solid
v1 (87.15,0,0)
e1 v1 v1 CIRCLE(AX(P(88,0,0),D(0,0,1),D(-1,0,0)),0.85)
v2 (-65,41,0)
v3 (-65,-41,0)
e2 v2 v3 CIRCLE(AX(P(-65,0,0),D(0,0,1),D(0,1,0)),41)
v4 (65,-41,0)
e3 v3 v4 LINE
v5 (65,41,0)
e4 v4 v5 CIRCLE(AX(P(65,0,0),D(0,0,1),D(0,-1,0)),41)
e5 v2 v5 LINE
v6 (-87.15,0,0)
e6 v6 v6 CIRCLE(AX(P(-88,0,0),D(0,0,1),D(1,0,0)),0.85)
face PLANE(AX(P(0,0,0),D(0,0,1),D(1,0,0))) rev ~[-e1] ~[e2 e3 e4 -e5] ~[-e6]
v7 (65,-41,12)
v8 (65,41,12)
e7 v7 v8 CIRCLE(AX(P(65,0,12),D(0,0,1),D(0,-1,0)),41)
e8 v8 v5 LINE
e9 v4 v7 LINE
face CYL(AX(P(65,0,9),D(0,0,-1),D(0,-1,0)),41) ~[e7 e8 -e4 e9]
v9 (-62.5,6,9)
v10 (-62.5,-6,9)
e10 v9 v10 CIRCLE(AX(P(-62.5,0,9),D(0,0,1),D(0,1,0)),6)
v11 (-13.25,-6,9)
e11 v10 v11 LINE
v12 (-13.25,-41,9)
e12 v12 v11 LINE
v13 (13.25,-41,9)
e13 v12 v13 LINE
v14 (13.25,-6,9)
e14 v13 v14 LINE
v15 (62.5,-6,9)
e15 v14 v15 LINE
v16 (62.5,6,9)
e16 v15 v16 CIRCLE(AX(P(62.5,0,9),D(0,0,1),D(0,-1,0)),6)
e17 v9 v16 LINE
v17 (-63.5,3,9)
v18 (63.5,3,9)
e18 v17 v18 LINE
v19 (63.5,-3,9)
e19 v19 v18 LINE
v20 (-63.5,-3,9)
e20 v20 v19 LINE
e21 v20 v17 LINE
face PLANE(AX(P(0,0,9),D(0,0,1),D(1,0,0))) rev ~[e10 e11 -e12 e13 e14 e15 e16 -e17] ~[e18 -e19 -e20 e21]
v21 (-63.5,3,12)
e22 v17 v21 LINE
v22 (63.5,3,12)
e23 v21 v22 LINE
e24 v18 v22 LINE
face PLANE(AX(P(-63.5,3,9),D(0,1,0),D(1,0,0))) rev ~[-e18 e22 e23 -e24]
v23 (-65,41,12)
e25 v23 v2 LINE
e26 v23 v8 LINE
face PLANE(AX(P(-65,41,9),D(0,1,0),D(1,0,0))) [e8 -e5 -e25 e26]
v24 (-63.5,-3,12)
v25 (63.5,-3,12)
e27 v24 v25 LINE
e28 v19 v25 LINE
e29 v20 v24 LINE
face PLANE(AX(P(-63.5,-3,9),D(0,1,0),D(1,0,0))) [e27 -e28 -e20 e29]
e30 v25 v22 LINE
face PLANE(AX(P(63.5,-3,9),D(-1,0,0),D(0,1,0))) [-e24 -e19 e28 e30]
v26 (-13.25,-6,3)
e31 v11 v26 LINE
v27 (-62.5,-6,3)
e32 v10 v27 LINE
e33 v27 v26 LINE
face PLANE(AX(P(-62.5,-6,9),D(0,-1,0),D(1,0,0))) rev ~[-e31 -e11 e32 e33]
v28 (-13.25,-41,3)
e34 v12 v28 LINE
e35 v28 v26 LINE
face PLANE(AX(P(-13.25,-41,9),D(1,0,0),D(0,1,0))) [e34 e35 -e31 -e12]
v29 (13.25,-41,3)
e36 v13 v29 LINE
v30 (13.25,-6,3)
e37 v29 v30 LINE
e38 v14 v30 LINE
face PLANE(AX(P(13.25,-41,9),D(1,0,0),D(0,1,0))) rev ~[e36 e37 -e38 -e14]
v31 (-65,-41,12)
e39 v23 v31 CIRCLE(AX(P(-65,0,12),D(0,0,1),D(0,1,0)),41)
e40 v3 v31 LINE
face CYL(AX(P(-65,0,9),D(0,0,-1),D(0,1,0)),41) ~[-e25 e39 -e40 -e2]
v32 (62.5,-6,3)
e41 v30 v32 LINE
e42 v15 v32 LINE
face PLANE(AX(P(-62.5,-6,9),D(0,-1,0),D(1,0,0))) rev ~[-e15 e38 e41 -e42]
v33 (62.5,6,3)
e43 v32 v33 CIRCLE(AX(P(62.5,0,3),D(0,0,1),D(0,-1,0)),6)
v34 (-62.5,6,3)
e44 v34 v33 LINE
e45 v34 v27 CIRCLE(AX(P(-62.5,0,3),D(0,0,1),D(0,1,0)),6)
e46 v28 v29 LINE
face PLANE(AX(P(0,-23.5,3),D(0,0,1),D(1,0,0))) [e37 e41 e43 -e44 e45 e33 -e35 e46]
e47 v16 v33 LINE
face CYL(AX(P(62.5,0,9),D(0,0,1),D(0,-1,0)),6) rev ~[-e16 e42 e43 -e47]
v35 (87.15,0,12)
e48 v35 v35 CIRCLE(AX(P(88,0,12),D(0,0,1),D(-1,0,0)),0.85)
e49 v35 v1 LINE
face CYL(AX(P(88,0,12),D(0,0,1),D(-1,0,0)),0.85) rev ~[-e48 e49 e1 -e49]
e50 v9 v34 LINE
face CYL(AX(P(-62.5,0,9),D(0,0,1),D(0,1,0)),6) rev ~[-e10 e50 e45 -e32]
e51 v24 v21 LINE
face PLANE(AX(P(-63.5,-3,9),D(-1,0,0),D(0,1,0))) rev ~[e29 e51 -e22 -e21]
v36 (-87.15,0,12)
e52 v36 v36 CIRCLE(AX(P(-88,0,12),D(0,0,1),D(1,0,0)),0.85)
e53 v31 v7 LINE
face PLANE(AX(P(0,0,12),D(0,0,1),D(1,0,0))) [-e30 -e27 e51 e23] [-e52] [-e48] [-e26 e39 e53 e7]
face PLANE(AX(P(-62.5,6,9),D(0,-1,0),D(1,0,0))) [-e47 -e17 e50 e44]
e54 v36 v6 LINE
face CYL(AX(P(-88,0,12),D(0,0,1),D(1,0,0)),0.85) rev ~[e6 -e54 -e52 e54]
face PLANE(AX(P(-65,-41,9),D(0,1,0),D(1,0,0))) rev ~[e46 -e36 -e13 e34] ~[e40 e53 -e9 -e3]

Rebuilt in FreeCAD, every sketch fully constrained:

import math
import FreeCAD as App
import Part
import Sketcher
from FreeCAD import Vector
Q = App.Units.Quantity

doc = App.newDocument("Part")
body = doc.addObject("PartDesign::Body", "Body")

# Sketch on XY plane
sketch1 = body.newObject("Sketcher::SketchObject", "Sketch")
sketch1.AttachmentSupport = (doc.getObject("XY_Plane"), [""])
sketch1.MapMode = "FlatFace"
sketch1.addGeometry([
    Part.ArcOfCircle(Part.Circle(Vector(-65, 0, 0), Vector(0, 0, 1), 41), math.radians(90), math.radians(270)),
    Part.LineSegment(Vector(-65, -41, 0), Vector(65, -41, 0)),
    Part.ArcOfCircle(Part.Circle(Vector(65, 0, 0), Vector(0, 0, 1), 41), math.radians(-90), math.radians(90)),
    Part.LineSegment(Vector(65, 41, 0), Vector(-65, 41, 0)),
], False)
sketch1.addConstraint([
    Sketcher.Constraint("Tangent", 0, 2, 1, 1),
    Sketcher.Constraint("Tangent", 1, 2, 2, 1),
    Sketcher.Constraint("Tangent", 2, 2, 3, 1),
    Sketcher.Constraint("Tangent", 3, 2, 0, 1),
    Sketcher.Constraint("Horizontal", 1),
    Sketcher.Constraint("Horizontal", 3),
    Sketcher.Constraint("Symmetric", 0, 3, 2, 3, -1, 1),
    Sketcher.Constraint("Radius", 0, Q("41 mm")),
    Sketcher.Constraint("DistanceX", 1, 1, 1, 2, Q("130 mm")),
])
pad1 = body.newObject("PartDesign::Pad", "Pad")
pad1.Profile = sketch1
pad1.Length = 9

# Sketch on XY plane
sketch2 = body.newObject("Sketcher::SketchObject", "Sketch001")
sketch2.AttachmentSupport = (doc.getObject("XY_Plane"), [""])
sketch2.MapMode = "FlatFace"
sketch2.AttachmentOffset = App.Placement(Vector(0, 0, 9), App.Rotation())
sketch2.addGeometry([
    Part.ArcOfCircle(Part.Circle(Vector(-62.5, 0, 0), Vector(0, 0, 1), 6), math.radians(90), math.radians(270)),
    Part.LineSegment(Vector(-62.5, -6, 0), Vector(62.5, -6, 0)),
    Part.ArcOfCircle(Part.Circle(Vector(62.5, 0, 0), Vector(0, 0, 1), 6), math.radians(-90), math.radians(90)),
    Part.LineSegment(Vector(62.5, 6, 0), Vector(-62.5, 6, 0)),
], False)
sketch2.addConstraint([
    Sketcher.Constraint("Tangent", 0, 2, 1, 1),
    Sketcher.Constraint("Tangent", 1, 2, 2, 1),
    Sketcher.Constraint("Tangent", 2, 2, 3, 1),
    Sketcher.Constraint("Tangent", 3, 2, 0, 1),
    Sketcher.Constraint("Horizontal", 1),
    Sketcher.Constraint("Horizontal", 3),
    Sketcher.Constraint("Symmetric", 0, 3, 2, 3, -1, 1),
    Sketcher.Constraint("Radius", 0, Q("6 mm")),
    Sketcher.Constraint("DistanceX", 1, 1, 1, 2, Q("125 mm")),
])
pocket1 = body.newObject("PartDesign::Pocket", "Pocket")
pocket1.Profile = sketch2
pocket1.Length = 6

# Sketch on XY plane
sketch3 = body.newObject("Sketcher::SketchObject", "Sketch002")
sketch3.AttachmentSupport = (doc.getObject("XY_Plane"), [""])
sketch3.MapMode = "FlatFace"
sketch3.AttachmentOffset = App.Placement(Vector(0, 0, 9), App.Rotation())
sketch3.addGeometry([
    Part.LineSegment(Vector(-13.25, -6, 0), Vector(-13.25, -41, 0)),
    Part.LineSegment(Vector(-13.25, -41, 0), Vector(13.25, -41, 0)),
    Part.LineSegment(Vector(13.25, -41, 0), Vector(13.25, -6, 0)),
    Part.LineSegment(Vector(13.25, -6, 0), Vector(-13.25, -6, 0)),
], False)
sketch3.addConstraint([
    Sketcher.Constraint("Coincident", 0, 2, 1, 1),
    Sketcher.Constraint("Coincident", 1, 2, 2, 1),
    Sketcher.Constraint("Coincident", 2, 2, 3, 1),
    Sketcher.Constraint("Coincident", 3, 2, 0, 1),
    Sketcher.Constraint("Vertical", 0),
    Sketcher.Constraint("Horizontal", 1),
    Sketcher.Constraint("Vertical", 2),
    Sketcher.Constraint("Horizontal", 3),
    Sketcher.Constraint("DistanceY", 0, 2, 0, 1, Q("35 mm")),
    Sketcher.Constraint("DistanceX", 1, 1, 1, 2, Q("26.5 mm")),
    Sketcher.Constraint("DistanceY", 0, 2, -1, 1, Q("41 mm")),
    Sketcher.Constraint("DistanceX", 0, 2, -1, 1, Q("13.25 mm")),
])
pocket2 = body.newObject("PartDesign::Pocket", "Pocket001")
pocket2.Profile = sketch3
pocket2.Length = 6

# Sketch on XY plane
sketch4 = body.newObject("Sketcher::SketchObject", "Sketch003")
sketch4.AttachmentSupport = (doc.getObject("XY_Plane"), [""])
sketch4.MapMode = "FlatFace"
sketch4.AttachmentOffset = App.Placement(Vector(0, 0, 9), App.Rotation())
sketch4.addGeometry([
    Part.ArcOfCircle(Part.Circle(Vector(-65, 0, 0), Vector(0, 0, 1), 41), math.radians(90), math.radians(270)),  # 0
    Part.LineSegment(Vector(-65, -41, 0), Vector(65, -41, 0)),  # 1
    Part.ArcOfCircle(Part.Circle(Vector(65, 0, 0), Vector(0, 0, 1), 41), math.radians(-90), math.radians(90)),  # 2
    Part.LineSegment(Vector(65, 41, 0), Vector(-65, 41, 0)),  # 3
    Part.LineSegment(Vector(63.5, -3, 0), Vector(-63.5, -3, 0)),  # 4
    Part.LineSegment(Vector(-63.5, -3, 0), Vector(-63.5, 3, 0)),  # 5
    Part.LineSegment(Vector(-63.5, 3, 0), Vector(63.5, 3, 0)),  # 6
    Part.LineSegment(Vector(63.5, 3, 0), Vector(63.5, -3, 0)),  # 7
], False)
sketch4.addConstraint([
    Sketcher.Constraint("Tangent", 0, 2, 1, 1),
    Sketcher.Constraint("Tangent", 1, 2, 2, 1),
    Sketcher.Constraint("Tangent", 2, 2, 3, 1),
    Sketcher.Constraint("Tangent", 3, 2, 0, 1),
    Sketcher.Constraint("Coincident", 4, 2, 5, 1),
    Sketcher.Constraint("Coincident", 5, 2, 6, 1),
    Sketcher.Constraint("Coincident", 6, 2, 7, 1),
    Sketcher.Constraint("Coincident", 7, 2, 4, 1),
    Sketcher.Constraint("Horizontal", 1),
    Sketcher.Constraint("Horizontal", 3),
    Sketcher.Constraint("Horizontal", 4),
    Sketcher.Constraint("Vertical", 5),
    Sketcher.Constraint("Horizontal", 6),
    Sketcher.Constraint("Vertical", 7),
    Sketcher.Constraint("Symmetric", 0, 3, 2, 3, -1, 1),
    Sketcher.Constraint("Symmetric", 4, 2, 6, 2, -1, 1),
    Sketcher.Constraint("Radius", 0, Q("41 mm")),
    Sketcher.Constraint("DistanceX", 1, 1, 1, 2, Q("130 mm")),
    Sketcher.Constraint("DistanceX", 4, 2, 4, 1, Q("127 mm")),
    Sketcher.Constraint("DistanceY", 5, 1, 5, 2, Q("6 mm")),
])
pad2 = body.newObject("PartDesign::Pad", "Pad001")
pad2.Profile = sketch4
pad2.Length = 3

# Sketch on XY plane
sketch5 = body.newObject("Sketcher::SketchObject", "Sketch004")
sketch5.AttachmentSupport = (doc.getObject("XY_Plane"), [""])
sketch5.MapMode = "FlatFace"
sketch5.AttachmentOffset = App.Placement(Vector(0, 0, 12), App.Rotation())
sketch5.addGeometry(Part.Circle(Vector(-88, 0, 0), Vector(0, 0, 1), 0.85), False)
sketch5.addConstraint([
    Sketcher.Constraint("PointOnObject", 0, 3, -1),
    Sketcher.Constraint("Diameter", 0, Q("1.7 mm")),
    Sketcher.Constraint("DistanceX", 0, 3, -1, 1, Q("88 mm")),
])
pocket3 = body.newObject("PartDesign::Pocket", "Pocket002")
pocket3.Profile = sketch5
pocket3.Type = "ThroughAll"
doc.recompute()

polarpattern = body.newObject("PartDesign::PolarPattern", "PolarPattern")
polarpattern.Originals = [pocket3]
polarpattern.Axis = (doc.getObject("Z_Axis"), [""])
polarpattern.Angle = 360
polarpattern.Occurrences = 2
body.Tip = polarpattern

doc.recompute()
